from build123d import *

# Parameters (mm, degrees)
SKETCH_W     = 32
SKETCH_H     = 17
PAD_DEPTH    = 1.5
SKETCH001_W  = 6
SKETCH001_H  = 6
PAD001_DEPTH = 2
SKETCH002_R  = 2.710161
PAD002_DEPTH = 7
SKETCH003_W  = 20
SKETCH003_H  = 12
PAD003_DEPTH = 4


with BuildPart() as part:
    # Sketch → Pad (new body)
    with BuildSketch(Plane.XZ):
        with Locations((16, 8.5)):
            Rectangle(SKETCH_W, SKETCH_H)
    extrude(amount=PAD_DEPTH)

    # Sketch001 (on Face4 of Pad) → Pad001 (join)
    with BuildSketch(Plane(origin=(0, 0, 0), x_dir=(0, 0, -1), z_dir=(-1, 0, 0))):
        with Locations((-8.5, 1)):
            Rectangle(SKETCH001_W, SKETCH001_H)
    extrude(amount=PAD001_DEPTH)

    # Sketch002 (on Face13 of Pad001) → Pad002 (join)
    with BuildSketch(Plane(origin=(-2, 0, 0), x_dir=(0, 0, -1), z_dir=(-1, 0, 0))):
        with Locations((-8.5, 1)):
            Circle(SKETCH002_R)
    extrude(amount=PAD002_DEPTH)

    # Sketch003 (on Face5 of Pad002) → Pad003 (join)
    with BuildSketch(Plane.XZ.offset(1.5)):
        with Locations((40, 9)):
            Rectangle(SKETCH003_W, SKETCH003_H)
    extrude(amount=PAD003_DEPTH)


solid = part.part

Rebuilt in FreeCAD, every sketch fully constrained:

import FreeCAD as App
import Part
import Sketcher
from FreeCAD import Vector


def add_polygon(sketch, points):
    """Adds a closed chain of lines whose ends are joined by coincident constraints."""
    first, n = sketch.GeometryCount, len(points)
    for a, b in zip(points, points[1:] + points[:1]):
        sketch.addGeometry(Part.LineSegment(App.Vector(*a, 0), App.Vector(*b, 0)), False)
    for i in range(n):
        sketch.addConstraint(Sketcher.Constraint("Coincident", first + i, 2, first + (i + 1) % n, 1))

doc = App.newDocument("Part")
body = doc.addObject("PartDesign::Body", "Body")

sketch1 = body.newObject("Sketcher::SketchObject", "Sketch")
sketch1.AttachmentSupport = (doc.getObject("XZ_Plane"), [""])
sketch1.MapMode = "FlatFace"
add_polygon(sketch1, [(0, 17), (0, 0), (32, 0), (32, 17)])
sketch1.addConstraint([
    Sketcher.Constraint("Vertical", 0),
    Sketcher.Constraint("Horizontal", 1),
    Sketcher.Constraint("Vertical", 2),
    Sketcher.Constraint("Horizontal", 3),
    Sketcher.Constraint("Coincident", 0, 2, -1, 1),
    Sketcher.Constraint("DistanceX", 1, 1, 1, 2, 32.0),
    Sketcher.Constraint("DistanceY", 0, 2, 0, 1, 17.0),
])
pad1 = body.newObject("PartDesign::Pad", "Pad")
pad1.Profile = sketch1
pad1.Length = 1.5

sketch2 = body.newObject("Sketcher::SketchObject", "Sketch001")
sketch2.AttachmentSupport = (doc.getObject("YZ_Plane"), [""])
sketch2.MapMode = "FlatFace"
add_polygon(sketch2, [(-4, 12), (2, 12), (2, 6), (-4, 6)])
sketch2.addConstraint([
    Sketcher.Constraint("Horizontal", 0),
    Sketcher.Constraint("Vertical", 1),
    Sketcher.Constraint("Horizontal", 2),
    Sketcher.Constraint("Vertical", 3),
    Sketcher.Constraint("Equal", 2, 1),
    Sketcher.Constraint("DistanceX", 0, 1, 0, 2, 6.0),
    Sketcher.Constraint("DistanceX", -1, 1, 0, 2, 2.0),
    Sketcher.Constraint("DistanceY", -1, 1, 0, 2, 11.5),
])
pad2 = body.newObject("PartDesign::Pad", "Pad001")
pad2.Profile = sketch2
pad2.Length = 2
pad2.Reversed = True

sketch3 = body.newObject("Sketcher::SketchObject", "Sketch002")
sketch3.AttachmentSupport = (doc.getObject("YZ_Plane"), [""])
sketch3.MapMode = "FlatFace"
sketch3.AttachmentOffset = App.Placement(Vector(0, 0, -2), App.Rotation())
sketch3.addGeometry(Part.Circle(Vector(-1, 8.5, 0), Vector(0, 0, 1), 2.7), False)
sketch3.addConstraint([
    Sketcher.Constraint("DistanceX", 0, 3, -1, 1, 1.0),
    Sketcher.Constraint("DistanceY", -1, 1, 0, 3, 8.5),
    Sketcher.Constraint("Diameter", 0, 5.420322),
])
pad3 = body.newObject("PartDesign::Pad", "Pad002")
pad3.Profile = sketch3
pad3.Length = 7
pad3.Reversed = True

sketch4 = body.newObject("Sketcher::SketchObject", "Sketch003")
sketch4.AttachmentSupport = (doc.getObject("XZ_Plane"), [""])
sketch4.MapMode = "FlatFace"
sketch4.AttachmentOffset = App.Placement(Vector(0, 0, 1.5), App.Rotation())
add_polygon(sketch4, [(30, 15), (30, 3), (50, 3), (50, 15)])
sketch4.addConstraint([
    Sketcher.Constraint("Vertical", 0),
    Sketcher.Constraint("Horizontal", 1),
    Sketcher.Constraint("Vertical", 2),
    Sketcher.Constraint("Horizontal", 3),
    Sketcher.Constraint("DistanceX", 1, 1, 1, 2, 20.0),
    Sketcher.Constraint("DistanceY", 0, 2, 0, 1, 12.0),
    Sketcher.Constraint("DistanceX", -1, 1, 0, 2, 30.0),
    Sketcher.Constraint("DistanceY", -1, 1, 0, 2, 3.0),
])
pad4 = body.newObject("PartDesign::Pad", "Pad003")
pad4.Profile = sketch4
pad4.Length = 4

doc.recompute()
